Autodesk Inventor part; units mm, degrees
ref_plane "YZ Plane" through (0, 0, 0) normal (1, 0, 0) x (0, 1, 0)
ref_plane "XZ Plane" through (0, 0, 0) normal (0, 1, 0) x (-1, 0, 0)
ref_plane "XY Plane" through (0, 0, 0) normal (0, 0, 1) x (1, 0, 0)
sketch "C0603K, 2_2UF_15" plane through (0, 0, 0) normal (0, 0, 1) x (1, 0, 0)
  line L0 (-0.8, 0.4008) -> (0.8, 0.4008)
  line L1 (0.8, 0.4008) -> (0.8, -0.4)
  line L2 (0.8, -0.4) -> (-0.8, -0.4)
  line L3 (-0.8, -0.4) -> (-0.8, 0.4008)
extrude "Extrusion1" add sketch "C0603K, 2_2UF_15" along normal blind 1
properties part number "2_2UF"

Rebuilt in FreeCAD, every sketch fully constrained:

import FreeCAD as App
import Part
import Sketcher
from FreeCAD import Vector

doc = App.newDocument("Part")
body = doc.addObject("PartDesign::Body", "Body")

# Sketch on XY plane
sketch1 = doc.addObject("Sketcher::SketchObject", "Sketch")
body.addObject(sketch1)
sketch1.AttachmentSupport = (doc.XY_Plane, [""])
sketch1.MapMode = "FlatFace"
sketch1.addGeometry([
    Part.LineSegment(Vector(0.8, 0.4, 0), Vector(-0.8, 0.4, 0)),
    Part.LineSegment(Vector(-0.8, 0.4, 0), Vector(-0.8, -0.4, 0)),
    Part.LineSegment(Vector(-0.8, -0.4, 0), Vector(0.8, -0.4, 0)),
    Part.LineSegment(Vector(0.8, -0.4, 0), Vector(0.8, 0.4, 0)),
], False)
sketch1.addConstraint([
    Sketcher.Constraint("Coincident", 0, 2, 1, 1),
    Sketcher.Constraint("Coincident", 1, 2, 2, 1),
    Sketcher.Constraint("Coincident", 2, 2, 3, 1),
    Sketcher.Constraint("Coincident", 3, 2, 0, 1),
    Sketcher.Constraint("Horizontal", 0),
    Sketcher.Constraint("Vertical", 1),
    Sketcher.Constraint("Horizontal", 2),
    Sketcher.Constraint("Vertical", 3),
    Sketcher.Constraint("DistanceX", 0, 2, 0, 1, 1.6),
    Sketcher.Constraint("DistanceX", 0, 2, -1, 1, 0.8),
    Sketcher.Constraint("DistanceY", 1, 2, -1, 1, 0.4),
    Sketcher.Constraint("DistanceY", 1, 2, 1, 1, 0.8008),
])
pad1 = doc.addObject("PartDesign::Pad", "Pad")
body.addObject(pad1)
pad1.Profile = sketch1
pad1.Length = 1

doc.recompute()
